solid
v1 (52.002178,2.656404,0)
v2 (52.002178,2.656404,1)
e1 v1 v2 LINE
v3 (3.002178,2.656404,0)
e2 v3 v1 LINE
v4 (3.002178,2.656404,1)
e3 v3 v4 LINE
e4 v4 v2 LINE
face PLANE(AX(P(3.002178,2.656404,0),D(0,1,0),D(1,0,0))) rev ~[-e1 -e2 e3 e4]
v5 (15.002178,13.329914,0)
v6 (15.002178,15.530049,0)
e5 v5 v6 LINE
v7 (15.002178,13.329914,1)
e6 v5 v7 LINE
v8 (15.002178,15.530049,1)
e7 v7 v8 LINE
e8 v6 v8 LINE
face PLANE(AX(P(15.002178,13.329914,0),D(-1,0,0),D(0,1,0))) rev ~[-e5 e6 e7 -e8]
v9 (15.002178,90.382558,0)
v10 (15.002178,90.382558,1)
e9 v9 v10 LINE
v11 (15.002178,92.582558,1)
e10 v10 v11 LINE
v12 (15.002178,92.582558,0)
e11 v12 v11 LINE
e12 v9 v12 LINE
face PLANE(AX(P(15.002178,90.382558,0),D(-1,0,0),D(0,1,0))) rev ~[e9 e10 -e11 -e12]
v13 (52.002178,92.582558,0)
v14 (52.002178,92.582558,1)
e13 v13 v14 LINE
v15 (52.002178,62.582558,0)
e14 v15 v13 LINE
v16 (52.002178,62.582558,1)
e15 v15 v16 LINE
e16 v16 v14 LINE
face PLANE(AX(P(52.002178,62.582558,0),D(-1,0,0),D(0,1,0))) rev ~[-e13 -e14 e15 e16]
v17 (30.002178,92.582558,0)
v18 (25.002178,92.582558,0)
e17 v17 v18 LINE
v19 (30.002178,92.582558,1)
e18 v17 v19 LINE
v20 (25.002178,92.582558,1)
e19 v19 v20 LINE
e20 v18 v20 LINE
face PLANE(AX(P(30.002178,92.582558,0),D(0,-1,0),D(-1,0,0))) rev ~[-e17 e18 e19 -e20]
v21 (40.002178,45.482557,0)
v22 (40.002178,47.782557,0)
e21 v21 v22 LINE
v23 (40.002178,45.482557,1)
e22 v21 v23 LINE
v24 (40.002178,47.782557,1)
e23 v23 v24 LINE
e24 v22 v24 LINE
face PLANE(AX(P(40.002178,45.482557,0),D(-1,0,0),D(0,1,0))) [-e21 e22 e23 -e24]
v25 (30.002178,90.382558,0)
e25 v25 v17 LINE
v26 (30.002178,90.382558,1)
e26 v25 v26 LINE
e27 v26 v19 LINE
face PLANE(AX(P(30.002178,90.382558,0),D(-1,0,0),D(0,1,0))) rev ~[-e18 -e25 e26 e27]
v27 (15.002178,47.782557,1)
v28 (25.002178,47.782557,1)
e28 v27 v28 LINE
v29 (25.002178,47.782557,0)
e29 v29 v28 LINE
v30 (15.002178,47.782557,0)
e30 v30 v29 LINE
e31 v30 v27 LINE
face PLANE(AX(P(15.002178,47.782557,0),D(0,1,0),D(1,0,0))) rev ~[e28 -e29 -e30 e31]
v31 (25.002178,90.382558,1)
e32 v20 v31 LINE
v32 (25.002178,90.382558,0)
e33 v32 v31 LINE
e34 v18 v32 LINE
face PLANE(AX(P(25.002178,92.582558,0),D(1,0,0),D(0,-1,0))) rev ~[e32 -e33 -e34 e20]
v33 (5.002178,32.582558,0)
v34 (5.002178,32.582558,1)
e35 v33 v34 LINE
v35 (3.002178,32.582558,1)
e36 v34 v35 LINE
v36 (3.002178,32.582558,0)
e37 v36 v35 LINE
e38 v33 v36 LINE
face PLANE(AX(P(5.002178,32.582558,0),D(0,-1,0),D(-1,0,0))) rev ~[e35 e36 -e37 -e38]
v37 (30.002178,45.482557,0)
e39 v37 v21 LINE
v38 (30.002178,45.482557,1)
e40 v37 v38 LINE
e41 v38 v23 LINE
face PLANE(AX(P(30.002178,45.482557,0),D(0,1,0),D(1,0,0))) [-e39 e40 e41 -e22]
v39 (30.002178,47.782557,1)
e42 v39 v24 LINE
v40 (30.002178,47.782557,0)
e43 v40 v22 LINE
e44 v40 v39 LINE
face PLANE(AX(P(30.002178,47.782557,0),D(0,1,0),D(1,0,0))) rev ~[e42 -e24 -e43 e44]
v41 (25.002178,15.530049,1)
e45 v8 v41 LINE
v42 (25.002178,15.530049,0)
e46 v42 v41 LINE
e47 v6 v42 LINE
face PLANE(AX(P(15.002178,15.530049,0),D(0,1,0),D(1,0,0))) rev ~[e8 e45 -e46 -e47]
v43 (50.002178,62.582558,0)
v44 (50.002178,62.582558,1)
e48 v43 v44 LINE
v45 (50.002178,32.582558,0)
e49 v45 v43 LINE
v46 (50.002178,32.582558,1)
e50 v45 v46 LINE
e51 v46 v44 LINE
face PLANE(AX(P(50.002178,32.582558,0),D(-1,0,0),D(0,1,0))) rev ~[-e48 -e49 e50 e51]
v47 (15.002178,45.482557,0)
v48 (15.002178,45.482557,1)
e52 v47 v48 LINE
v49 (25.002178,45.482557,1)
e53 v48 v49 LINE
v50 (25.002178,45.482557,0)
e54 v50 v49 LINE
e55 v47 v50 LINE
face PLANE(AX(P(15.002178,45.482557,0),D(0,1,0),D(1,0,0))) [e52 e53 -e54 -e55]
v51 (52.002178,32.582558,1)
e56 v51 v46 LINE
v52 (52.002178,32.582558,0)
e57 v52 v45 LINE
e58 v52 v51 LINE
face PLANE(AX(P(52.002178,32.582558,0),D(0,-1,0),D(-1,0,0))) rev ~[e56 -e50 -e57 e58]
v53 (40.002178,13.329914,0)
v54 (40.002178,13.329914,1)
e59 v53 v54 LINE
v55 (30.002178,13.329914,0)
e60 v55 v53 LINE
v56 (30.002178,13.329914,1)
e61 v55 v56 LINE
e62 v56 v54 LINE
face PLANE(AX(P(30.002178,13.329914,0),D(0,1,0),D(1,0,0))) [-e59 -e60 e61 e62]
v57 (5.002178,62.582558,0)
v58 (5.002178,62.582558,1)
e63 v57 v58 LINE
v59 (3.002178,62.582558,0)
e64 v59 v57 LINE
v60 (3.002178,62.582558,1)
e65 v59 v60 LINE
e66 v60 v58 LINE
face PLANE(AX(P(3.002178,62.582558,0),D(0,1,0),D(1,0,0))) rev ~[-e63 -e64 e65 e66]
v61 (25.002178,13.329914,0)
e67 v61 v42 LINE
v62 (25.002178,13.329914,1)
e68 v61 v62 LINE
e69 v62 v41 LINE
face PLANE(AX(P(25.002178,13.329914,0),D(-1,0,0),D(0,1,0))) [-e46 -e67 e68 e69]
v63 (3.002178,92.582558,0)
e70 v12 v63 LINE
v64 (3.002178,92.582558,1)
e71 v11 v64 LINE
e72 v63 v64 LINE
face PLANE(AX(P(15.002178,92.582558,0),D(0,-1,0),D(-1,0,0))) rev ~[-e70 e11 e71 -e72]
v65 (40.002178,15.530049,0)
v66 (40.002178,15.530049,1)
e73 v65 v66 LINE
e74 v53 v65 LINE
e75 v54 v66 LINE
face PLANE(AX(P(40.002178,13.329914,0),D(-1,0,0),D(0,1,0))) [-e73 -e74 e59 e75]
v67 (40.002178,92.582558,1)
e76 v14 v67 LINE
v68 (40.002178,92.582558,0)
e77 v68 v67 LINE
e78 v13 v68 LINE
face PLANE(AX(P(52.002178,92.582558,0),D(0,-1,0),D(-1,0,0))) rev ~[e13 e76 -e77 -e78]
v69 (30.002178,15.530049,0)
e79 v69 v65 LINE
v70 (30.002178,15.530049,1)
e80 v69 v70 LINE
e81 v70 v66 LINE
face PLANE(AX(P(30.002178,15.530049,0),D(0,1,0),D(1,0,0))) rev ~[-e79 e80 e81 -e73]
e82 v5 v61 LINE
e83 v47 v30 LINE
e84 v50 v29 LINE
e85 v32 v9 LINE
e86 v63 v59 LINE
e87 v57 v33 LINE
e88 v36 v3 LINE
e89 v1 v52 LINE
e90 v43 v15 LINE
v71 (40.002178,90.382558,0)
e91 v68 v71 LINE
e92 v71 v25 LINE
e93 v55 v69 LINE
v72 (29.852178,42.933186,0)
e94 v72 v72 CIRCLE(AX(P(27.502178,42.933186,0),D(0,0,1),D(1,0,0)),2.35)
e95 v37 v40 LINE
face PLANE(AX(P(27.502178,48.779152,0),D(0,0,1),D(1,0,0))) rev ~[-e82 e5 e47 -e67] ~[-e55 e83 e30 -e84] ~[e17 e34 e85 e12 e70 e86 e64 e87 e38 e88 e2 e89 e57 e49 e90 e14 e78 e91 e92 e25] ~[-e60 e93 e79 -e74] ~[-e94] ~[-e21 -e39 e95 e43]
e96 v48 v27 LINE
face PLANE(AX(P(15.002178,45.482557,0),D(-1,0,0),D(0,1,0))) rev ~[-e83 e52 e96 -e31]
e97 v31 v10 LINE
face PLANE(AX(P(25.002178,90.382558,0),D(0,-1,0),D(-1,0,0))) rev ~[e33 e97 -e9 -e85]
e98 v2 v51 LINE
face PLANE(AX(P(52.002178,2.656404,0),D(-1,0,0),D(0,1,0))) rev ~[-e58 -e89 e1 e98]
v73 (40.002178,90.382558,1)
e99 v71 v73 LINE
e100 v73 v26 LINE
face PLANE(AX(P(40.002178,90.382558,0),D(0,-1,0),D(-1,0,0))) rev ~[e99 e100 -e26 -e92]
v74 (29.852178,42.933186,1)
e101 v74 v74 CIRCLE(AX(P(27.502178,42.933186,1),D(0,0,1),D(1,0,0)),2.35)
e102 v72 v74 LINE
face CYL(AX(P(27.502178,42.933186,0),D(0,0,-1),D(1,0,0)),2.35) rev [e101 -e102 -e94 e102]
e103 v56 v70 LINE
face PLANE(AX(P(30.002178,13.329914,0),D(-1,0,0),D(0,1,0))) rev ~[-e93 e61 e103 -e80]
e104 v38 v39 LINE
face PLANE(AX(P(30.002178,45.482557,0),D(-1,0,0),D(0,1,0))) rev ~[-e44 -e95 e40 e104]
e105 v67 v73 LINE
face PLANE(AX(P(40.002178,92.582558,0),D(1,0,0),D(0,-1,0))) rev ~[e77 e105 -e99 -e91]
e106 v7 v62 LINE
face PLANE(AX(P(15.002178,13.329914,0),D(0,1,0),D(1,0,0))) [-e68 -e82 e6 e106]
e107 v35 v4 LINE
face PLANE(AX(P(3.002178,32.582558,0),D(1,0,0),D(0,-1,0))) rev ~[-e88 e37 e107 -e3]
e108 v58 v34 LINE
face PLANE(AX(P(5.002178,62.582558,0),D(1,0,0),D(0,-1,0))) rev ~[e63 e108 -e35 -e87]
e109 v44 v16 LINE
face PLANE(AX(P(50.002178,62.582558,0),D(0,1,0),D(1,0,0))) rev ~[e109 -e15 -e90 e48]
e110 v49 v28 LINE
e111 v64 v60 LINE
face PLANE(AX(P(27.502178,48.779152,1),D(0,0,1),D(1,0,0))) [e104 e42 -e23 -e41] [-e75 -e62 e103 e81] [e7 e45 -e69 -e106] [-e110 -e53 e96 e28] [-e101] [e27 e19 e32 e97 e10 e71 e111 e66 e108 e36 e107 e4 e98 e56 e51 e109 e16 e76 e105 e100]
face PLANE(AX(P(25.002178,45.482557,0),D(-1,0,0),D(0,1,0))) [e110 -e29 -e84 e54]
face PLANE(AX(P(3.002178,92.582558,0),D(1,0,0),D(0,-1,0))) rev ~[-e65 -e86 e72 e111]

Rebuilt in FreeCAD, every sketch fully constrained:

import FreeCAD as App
import Part
import Sketcher
Q = App.Units.Quantity


def add_polygon(sketch, points):
    """Adds a closed chain of lines whose ends are joined by coincident constraints."""
    first, n = sketch.GeometryCount, len(points)
    for a, b in zip(points, points[1:] + points[:1]):
        sketch.addGeometry(Part.LineSegment(App.Vector(*a, 0), App.Vector(*b, 0)), False)
    for i in range(n):
        sketch.addConstraint(Sketcher.Constraint("Coincident", first + i, 2, first + (i + 1) % n, 1))

doc = App.newDocument("Part")
body = doc.addObject("PartDesign::Body", "Body")

# Sketch on XY plane
sketch1 = body.newObject("Sketcher::SketchObject", "Sketch")
sketch1.AttachmentSupport = (doc.getObject("XY_Plane"), [""])
sketch1.MapMode = "FlatFace"
add_polygon(sketch1, [(3, 2.7), (52, 2.7), (52, 32.6), (50, 32.6), (50, 62.6), (52, 62.6), (52, 92.6), (40, 92.6), (40, 90.4), (30, 90.4), (30, 92.6), (25, 92.6), (25, 90.4), (15, 90.4), (15, 92.6), (3, 92.6), (3, 62.6), (5, 62.6), (5, 32.6), (3, 32.6)])  # lines 0-19
add_polygon(sketch1, [(25, 13.3), (15, 13.3), (15, 15.5), (25, 15.5)])  # lines 20-23
add_polygon(sketch1, [(40, 13.3), (30, 13.3), (30, 15.5), (40, 15.5)])  # lines 24-27
add_polygon(sketch1, [(25, 45.5), (15, 45.5), (15, 47.8), (25, 47.8)])  # lines 28-31
sketch1.addGeometry(Part.Circle(App.Vector(27.5, 42.9, 0), App.Vector(0, 0, 1), 2.4), False)  # 32
add_polygon(sketch1, [(40, 45.5), (30, 45.5), (30, 47.8), (40, 47.8)])  # lines 33-36
sketch1.addConstraint([
    Sketcher.Constraint("Horizontal", 0),
    Sketcher.Constraint("Vertical", 1),
    Sketcher.Constraint("Horizontal", 2),
    Sketcher.Constraint("Vertical", 3),
    Sketcher.Constraint("Horizontal", 4),
    Sketcher.Constraint("Vertical", 5),
    Sketcher.Constraint("Horizontal", 6),
    Sketcher.Constraint("Vertical", 7),
    Sketcher.Constraint("Horizontal", 8),
    Sketcher.Constraint("Vertical", 9),
    Sketcher.Constraint("Horizontal", 10),
    Sketcher.Constraint("Vertical", 11),
    Sketcher.Constraint("Horizontal", 12),
    Sketcher.Constraint("Vertical", 13),
    Sketcher.Constraint("Horizontal", 14),
    Sketcher.Constraint("Vertical", 15),
    Sketcher.Constraint("Horizontal", 16),
    Sketcher.Constraint("Vertical", 17),
    Sketcher.Constraint("Horizontal", 18),
    Sketcher.Constraint("Vertical", 19),
    Sketcher.Constraint("Horizontal", 20),
    Sketcher.Constraint("Vertical", 21),
    Sketcher.Constraint("Horizontal", 22),
    Sketcher.Constraint("Vertical", 23),
    Sketcher.Constraint("Horizontal", 24),
    Sketcher.Constraint("Vertical", 25),
    Sketcher.Constraint("Horizontal", 26),
    Sketcher.Constraint("Vertical", 27),
    Sketcher.Constraint("Horizontal", 28),
    Sketcher.Constraint("Vertical", 29),
    Sketcher.Constraint("Horizontal", 30),
    Sketcher.Constraint("Vertical", 31),
    Sketcher.Constraint("Horizontal", 33),
    Sketcher.Constraint("Vertical", 34),
    Sketcher.Constraint("Horizontal", 35),
    Sketcher.Constraint("Vertical", 36),
    Sketcher.Constraint("Horizontal", 6, 2, 9, 2),
    Sketcher.Constraint("Horizontal", 8, 2, 11, 2),
    Sketcher.Constraint("Horizontal", 10, 2, 13, 2),
    Sketcher.Constraint("Horizontal", 4, 2, 15, 2),
    Sketcher.Constraint("Horizontal", 2, 2, 17, 2),
    Sketcher.Constraint("Horizontal", 23, 2, 24, 2),
    Sketcher.Constraint("Horizontal", 22, 2, 25, 2),
    Sketcher.Constraint("Horizontal", 31, 2, 33, 2),
    Sketcher.Constraint("Horizontal", 30, 2, 34, 2),
    Sketcher.Constraint("Vertical", 1, 2, 4, 2),
    Sketcher.Constraint("Vertical", 15, 2, 18, 2),
    Sketcher.Constraint("Vertical", 13, 2, 20, 2),
    Sketcher.Constraint("Vertical", 11, 2, 22, 2),
    Sketcher.Constraint("Vertical", 9, 2, 24, 2),
    Sketcher.Constraint("Vertical", 7, 2, 26, 2),
    Sketcher.Constraint("Vertical", 21, 2, 28, 2),
    Sketcher.Constraint("Vertical", 23, 2, 30, 2),
    Sketcher.Constraint("Vertical", 25, 2, 33, 2),
    Sketcher.Constraint("Vertical", 27, 2, 35, 2),
    Sketcher.Constraint("Equal", 8, 12),
    Sketcher.Constraint("Equal", 6, 14),
    Sketcher.Constraint("Equal", 4, 16),
    Sketcher.Constraint("Equal", 3, 5),
    Sketcher.Constraint("Diameter", 32, Q("4.7 mm")),
    Sketcher.Constraint("DistanceX", 0, 1, 0, 2, Q("49 mm")),
    Sketcher.Constraint("DistanceX", 2, 2, 2, 1, Q("2 mm")),
    Sketcher.Constraint("DistanceX", 6, 2, 6, 1, Q("12 mm")),
    Sketcher.Constraint("DistanceX", 8, 2, 8, 1, Q("10 mm")),
    Sketcher.Constraint("DistanceY", 3, 1, 3, 2, Q("30 mm")),
    Sketcher.Constraint("DistanceY", 7, 2, 7, 1, Q("2.2 mm")),
    Sketcher.Constraint("DistanceY", 29, 1, 29, 2, Q("2.3 mm")),
    Sketcher.Constraint("DistanceX", 32, 3, 0, 2, Q("24.5 mm")),
    Sketcher.Constraint("DistanceY", 17, 2, 28, 2, Q("12.899999 mm")),
    Sketcher.Constraint("DistanceY", 1, 1, 1, 2, Q("29.926154 mm")),
    Sketcher.Constraint("DistanceY", 21, 1, 21, 2, Q("2.200135 mm")),
    Sketcher.Constraint("DistanceX", -1, 1, 32, 3, Q("27.502178 mm")),
    Sketcher.Constraint("DistanceY", -1, 1, 1, 2, Q("32.582558 mm")),
    Sketcher.Constraint("DistanceY", -1, 1, 21, 2, Q("15.530049 mm")),
    Sketcher.Constraint("DistanceY", 0, 2, 32, 3, Q("40.276781 mm")),
])
pad1 = body.newObject("PartDesign::Pad", "Pad")
pad1.Profile = sketch1
pad1.Length = 1

doc.recompute()
